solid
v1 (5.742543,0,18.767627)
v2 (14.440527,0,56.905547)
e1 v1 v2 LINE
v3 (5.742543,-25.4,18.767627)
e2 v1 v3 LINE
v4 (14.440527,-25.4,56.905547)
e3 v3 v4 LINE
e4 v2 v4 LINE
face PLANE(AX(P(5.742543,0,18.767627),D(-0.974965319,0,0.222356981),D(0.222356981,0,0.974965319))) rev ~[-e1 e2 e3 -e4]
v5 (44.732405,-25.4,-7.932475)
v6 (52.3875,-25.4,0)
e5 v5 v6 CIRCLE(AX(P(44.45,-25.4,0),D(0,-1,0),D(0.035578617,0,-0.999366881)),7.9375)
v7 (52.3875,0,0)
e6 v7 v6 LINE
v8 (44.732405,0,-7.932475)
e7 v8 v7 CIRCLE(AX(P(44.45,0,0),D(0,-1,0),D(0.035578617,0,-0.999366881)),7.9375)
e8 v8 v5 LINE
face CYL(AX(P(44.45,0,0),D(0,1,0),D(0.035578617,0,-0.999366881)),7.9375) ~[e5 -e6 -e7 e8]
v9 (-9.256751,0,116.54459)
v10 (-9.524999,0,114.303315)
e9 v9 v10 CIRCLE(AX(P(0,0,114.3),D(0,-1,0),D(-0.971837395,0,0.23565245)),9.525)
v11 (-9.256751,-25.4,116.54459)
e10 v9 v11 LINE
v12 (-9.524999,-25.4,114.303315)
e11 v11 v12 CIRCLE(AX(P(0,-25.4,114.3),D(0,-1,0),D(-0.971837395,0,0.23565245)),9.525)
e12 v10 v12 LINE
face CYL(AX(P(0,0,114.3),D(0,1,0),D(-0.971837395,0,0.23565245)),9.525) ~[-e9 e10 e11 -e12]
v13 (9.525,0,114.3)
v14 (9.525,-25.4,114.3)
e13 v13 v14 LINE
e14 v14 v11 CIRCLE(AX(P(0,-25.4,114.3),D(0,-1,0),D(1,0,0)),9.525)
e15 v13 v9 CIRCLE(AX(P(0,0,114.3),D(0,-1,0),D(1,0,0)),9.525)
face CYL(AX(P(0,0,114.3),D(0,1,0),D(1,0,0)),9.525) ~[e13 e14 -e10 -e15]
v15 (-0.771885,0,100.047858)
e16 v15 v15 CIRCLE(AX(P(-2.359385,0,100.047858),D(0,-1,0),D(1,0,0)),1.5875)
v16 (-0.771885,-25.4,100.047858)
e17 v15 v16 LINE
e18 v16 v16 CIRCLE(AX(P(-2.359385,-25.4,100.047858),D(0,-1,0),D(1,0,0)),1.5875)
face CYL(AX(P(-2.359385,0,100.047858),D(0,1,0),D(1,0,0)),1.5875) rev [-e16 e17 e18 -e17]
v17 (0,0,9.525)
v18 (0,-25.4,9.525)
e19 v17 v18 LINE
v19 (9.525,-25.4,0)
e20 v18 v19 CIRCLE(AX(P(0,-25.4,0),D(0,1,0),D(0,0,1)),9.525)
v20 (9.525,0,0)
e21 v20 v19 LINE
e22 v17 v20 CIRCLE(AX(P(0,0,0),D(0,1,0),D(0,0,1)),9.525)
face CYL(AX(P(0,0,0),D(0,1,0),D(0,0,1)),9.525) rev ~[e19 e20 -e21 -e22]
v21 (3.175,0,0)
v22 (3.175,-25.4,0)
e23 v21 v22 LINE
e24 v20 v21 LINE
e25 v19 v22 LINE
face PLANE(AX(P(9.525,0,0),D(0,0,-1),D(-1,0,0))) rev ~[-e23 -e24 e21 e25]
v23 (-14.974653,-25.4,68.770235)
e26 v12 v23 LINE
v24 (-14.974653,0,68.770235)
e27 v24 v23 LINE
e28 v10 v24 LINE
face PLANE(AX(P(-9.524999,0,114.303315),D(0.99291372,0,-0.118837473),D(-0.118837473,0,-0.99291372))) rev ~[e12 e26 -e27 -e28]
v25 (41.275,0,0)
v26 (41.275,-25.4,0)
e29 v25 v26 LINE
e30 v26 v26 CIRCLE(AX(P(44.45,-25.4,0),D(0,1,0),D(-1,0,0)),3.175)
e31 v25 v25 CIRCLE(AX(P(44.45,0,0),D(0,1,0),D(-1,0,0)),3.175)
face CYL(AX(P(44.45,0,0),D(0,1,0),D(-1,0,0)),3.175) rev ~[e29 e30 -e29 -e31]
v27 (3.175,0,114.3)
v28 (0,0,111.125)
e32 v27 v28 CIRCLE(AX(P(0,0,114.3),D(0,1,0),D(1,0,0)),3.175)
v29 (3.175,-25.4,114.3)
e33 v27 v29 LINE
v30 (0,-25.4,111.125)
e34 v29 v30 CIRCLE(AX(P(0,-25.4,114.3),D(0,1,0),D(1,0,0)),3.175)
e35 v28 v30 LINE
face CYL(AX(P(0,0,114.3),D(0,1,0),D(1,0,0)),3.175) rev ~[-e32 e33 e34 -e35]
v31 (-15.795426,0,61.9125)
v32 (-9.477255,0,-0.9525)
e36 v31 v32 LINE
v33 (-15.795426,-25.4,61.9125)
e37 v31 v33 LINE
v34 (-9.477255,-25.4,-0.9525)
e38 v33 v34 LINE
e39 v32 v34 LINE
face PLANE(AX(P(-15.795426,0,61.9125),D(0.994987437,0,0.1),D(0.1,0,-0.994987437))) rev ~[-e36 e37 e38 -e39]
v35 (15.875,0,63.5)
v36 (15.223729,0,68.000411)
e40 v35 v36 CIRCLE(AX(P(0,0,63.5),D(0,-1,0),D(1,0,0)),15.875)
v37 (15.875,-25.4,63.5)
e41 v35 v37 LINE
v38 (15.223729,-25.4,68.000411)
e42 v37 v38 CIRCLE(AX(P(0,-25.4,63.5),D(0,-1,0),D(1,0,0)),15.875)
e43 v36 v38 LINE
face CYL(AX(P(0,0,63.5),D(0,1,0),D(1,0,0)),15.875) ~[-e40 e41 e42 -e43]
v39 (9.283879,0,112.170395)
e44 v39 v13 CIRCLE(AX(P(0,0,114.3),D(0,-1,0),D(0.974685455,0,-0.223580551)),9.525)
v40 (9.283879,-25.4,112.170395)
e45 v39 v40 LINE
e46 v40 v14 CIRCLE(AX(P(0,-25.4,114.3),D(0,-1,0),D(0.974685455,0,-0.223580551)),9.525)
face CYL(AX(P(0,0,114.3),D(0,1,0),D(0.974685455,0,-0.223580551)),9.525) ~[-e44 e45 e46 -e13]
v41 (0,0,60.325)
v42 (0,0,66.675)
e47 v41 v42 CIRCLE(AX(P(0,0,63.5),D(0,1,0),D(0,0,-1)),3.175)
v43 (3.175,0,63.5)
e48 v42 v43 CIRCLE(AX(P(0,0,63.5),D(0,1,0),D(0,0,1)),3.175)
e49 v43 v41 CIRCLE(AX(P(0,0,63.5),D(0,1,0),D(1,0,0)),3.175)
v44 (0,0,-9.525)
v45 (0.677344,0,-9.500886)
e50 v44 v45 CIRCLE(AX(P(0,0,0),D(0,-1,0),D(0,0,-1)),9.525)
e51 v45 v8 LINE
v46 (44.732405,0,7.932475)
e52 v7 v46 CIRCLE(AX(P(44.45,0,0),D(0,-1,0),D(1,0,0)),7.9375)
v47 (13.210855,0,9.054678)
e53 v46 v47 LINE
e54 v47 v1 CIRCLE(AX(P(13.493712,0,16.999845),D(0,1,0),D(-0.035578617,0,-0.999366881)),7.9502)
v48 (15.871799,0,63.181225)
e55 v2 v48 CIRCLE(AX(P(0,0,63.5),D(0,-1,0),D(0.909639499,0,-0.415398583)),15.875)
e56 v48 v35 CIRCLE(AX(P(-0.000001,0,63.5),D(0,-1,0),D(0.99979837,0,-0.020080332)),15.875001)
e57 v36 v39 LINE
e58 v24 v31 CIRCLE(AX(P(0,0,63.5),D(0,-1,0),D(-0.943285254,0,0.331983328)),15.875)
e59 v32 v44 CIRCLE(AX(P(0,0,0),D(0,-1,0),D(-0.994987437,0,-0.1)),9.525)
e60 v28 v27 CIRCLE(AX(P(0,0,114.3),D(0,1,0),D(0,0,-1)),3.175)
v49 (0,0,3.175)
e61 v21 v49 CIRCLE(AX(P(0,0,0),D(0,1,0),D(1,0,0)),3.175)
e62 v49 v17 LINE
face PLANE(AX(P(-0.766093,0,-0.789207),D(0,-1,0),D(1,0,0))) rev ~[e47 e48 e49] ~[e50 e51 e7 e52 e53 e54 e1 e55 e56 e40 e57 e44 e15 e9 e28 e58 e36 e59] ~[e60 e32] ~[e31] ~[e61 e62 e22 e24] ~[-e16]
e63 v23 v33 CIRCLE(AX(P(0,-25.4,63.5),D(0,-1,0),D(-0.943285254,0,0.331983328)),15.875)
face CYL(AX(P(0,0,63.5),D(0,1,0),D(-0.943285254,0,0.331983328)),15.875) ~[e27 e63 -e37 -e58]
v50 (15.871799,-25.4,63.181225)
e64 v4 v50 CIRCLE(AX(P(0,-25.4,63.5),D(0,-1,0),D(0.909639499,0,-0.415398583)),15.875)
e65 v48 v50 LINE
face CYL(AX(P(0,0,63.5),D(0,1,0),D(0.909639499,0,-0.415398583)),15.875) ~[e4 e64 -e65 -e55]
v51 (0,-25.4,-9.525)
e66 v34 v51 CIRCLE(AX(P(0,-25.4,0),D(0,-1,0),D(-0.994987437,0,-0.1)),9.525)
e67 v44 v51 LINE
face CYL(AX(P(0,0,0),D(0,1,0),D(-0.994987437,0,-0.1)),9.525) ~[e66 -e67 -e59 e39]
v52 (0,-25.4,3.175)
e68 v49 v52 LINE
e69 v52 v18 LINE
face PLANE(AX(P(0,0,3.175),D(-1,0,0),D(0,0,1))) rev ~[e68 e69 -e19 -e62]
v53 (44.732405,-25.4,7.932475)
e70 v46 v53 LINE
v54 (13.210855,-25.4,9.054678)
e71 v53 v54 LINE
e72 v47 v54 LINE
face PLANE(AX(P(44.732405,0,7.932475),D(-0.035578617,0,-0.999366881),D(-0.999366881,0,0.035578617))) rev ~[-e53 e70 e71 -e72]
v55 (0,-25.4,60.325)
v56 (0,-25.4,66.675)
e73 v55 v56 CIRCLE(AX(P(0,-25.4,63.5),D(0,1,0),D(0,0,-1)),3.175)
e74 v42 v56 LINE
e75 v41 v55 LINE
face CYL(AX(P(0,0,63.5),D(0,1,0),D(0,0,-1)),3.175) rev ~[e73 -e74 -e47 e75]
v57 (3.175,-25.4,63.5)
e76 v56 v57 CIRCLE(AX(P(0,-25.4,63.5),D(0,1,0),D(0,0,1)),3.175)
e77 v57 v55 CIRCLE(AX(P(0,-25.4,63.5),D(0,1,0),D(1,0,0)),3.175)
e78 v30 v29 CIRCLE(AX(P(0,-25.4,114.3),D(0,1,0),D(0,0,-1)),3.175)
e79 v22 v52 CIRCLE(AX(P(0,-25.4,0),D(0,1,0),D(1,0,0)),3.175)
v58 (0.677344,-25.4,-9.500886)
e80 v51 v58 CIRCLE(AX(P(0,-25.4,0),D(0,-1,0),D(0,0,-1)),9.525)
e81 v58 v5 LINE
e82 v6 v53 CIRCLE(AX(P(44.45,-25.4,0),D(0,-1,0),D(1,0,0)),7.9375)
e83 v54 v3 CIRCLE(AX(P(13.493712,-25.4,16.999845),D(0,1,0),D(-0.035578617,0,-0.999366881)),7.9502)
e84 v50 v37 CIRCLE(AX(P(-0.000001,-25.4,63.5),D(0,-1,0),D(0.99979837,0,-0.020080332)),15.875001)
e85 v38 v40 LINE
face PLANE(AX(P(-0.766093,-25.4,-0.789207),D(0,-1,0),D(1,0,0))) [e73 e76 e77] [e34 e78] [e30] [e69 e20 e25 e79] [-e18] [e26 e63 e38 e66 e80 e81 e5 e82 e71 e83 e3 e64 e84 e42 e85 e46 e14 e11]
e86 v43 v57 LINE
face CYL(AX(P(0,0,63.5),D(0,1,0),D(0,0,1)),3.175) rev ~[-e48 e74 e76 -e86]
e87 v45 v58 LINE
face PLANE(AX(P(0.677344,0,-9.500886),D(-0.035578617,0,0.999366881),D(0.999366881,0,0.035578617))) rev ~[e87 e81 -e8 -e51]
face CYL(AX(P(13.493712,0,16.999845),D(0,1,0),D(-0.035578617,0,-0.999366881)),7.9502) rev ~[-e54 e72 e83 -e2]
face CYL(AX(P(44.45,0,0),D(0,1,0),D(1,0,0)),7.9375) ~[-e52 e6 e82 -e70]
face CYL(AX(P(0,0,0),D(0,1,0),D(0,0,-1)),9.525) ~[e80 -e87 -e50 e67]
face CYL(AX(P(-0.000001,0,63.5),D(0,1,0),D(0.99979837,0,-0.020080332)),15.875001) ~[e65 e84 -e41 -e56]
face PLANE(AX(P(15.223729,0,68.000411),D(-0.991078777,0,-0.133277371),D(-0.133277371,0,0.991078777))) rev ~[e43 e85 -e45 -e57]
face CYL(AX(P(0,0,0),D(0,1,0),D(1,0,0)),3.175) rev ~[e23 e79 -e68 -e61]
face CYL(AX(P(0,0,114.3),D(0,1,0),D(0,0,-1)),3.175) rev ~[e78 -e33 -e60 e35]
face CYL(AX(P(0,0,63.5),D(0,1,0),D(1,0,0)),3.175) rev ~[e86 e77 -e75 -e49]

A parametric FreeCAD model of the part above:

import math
import FreeCAD as App
import Part
import Sketcher
Q = App.Units.Quantity

doc = App.newDocument("Part")
body = doc.addObject("PartDesign::Body", "Body")

# Sketch on XZ plane
sketch1 = body.newObject("Sketcher::SketchObject", "Sketch")
sketch1.AttachmentSupport = (doc.getObject("XZ_Plane"), [""])
sketch1.MapMode = "FlatFace"
sketch1.addGeometry([
    Part.ArcOfCircle(Part.Circle(App.Vector(0, 0, 0), App.Vector(0, 0, 1), 9.525), math.radians(-90), math.radians(-85.92213)),  # 0
    Part.LineSegment(App.Vector(0.677344, -9.500886, 0), App.Vector(44.732405, -7.932475, 0)),  # 1
    Part.ArcOfCircle(Part.Circle(App.Vector(44.45, 0, 0), App.Vector(0, 0, 1), 7.9375), math.radians(-87.961065), math.radians(0)),  # 2
    Part.ArcOfCircle(Part.Circle(App.Vector(44.45, 0, 0), App.Vector(0, 0, 1), 7.9375), math.radians(0), math.radians(87.961065)),  # 3
    Part.LineSegment(App.Vector(44.732405, 7.932475, 0), App.Vector(13.210855, 9.054678, 0)),  # 4
    Part.ArcOfCircle(Part.Circle(App.Vector(13.493712, 16.999845, 0), App.Vector(0, 0, 1), 7.9502), math.radians(167.152492), math.radians(267.961065)),  # 5
    Part.LineSegment(App.Vector(5.742543, 18.767627, 0), App.Vector(14.440527, 56.905547, 0)),  # 6
    Part.ArcOfCircle(Part.Circle(App.Vector(0, 63.5, 0), App.Vector(0, 0, 1), 15.875), math.radians(-24.54442), math.radians(-1.150596)),  # 7
    Part.ArcOfCircle(Part.Circle(App.Vector(-0.000001, 63.5, 0), App.Vector(0, 0, 1), 15.875001), math.radians(-1.150596), math.radians(0)),  # 8
    Part.ArcOfCircle(Part.Circle(App.Vector(0, 63.5, 0), App.Vector(0, 0, 1), 15.875), math.radians(0), math.radians(16.468636)),  # 9
    Part.LineSegment(App.Vector(15.223729, 68.000411, 0), App.Vector(9.283879, 112.170395, 0)),  # 10
    Part.ArcOfCircle(Part.Circle(App.Vector(0, 114.3, 0), App.Vector(0, 0, 1), 9.525), math.radians(-12.919424), math.radians(0)),  # 11
    Part.ArcOfCircle(Part.Circle(App.Vector(0, 114.3, 0), App.Vector(0, 0, 1), 9.525), math.radians(0), math.radians(166.369914)),  # 12
    Part.ArcOfCircle(Part.Circle(App.Vector(0, 114.3, 0), App.Vector(0, 0, 1), 9.525), math.radians(166.369914), math.radians(179.980056)),  # 13
    Part.LineSegment(App.Vector(-9.524999, 114.303315, 0), App.Vector(-14.974653, 68.770235, 0)),  # 14
    Part.ArcOfCircle(Part.Circle(App.Vector(0, 63.5, 0), App.Vector(0, 0, 1), 15.875), math.radians(160.6108), math.radians(185.73917)),  # 15
    Part.LineSegment(App.Vector(-15.795426, 61.9125, 0), App.Vector(-9.477255, -0.9525, 0)),  # 16
    Part.ArcOfCircle(Part.Circle(App.Vector(0, 0, 0), App.Vector(0, 0, 1), 9.525), math.radians(-174.26083), math.radians(-90)),  # 17
    Part.ArcOfCircle(Part.Circle(App.Vector(0, 0, 0), App.Vector(0, 0, 1), 9.525), math.radians(0), math.radians(90)),  # 18
    Part.LineSegment(App.Vector(9.525, 0, 0), App.Vector(3.175, 0, 0)),  # 19
    Part.ArcOfCircle(Part.Circle(App.Vector(0, 0, 0), App.Vector(0, 0, 1), 3.175), math.radians(90), math.radians(360)),  # 20
    Part.LineSegment(App.Vector(0, 3.175, 0), App.Vector(0, 9.525, 0)),  # 21
    Part.Circle(App.Vector(44.45, 0, 0), App.Vector(0, 0, 1), 3.175),  # 22
    Part.ArcOfCircle(Part.Circle(App.Vector(0, 63.5, 0), App.Vector(0, 0, 1), 3.175), math.radians(90), math.radians(270)),  # 23
    Part.ArcOfCircle(Part.Circle(App.Vector(0, 63.5, 0), App.Vector(0, 0, 1), 3.175), math.radians(0), math.radians(90)),  # 24
    Part.ArcOfCircle(Part.Circle(App.Vector(0, 63.5, 0), App.Vector(0, 0, 1), 3.175), math.radians(-90), math.radians(0)),  # 25
    Part.Circle(App.Vector(-2.359385, 100.047858, 0), App.Vector(0, 0, 1), 1.5875),  # 26
    Part.ArcOfCircle(Part.Circle(App.Vector(0, 114.3, 0), App.Vector(0, 0, 1), 3.175), math.radians(0), math.radians(270)),  # 27
    Part.ArcOfCircle(Part.Circle(App.Vector(0, 114.3, 0), App.Vector(0, 0, 1), 3.175), math.radians(-90), math.radians(0)),  # 28
], False)
sketch1.addConstraint([
    Sketcher.Constraint("Coincident", 0, 2, 1, 1),
    Sketcher.Constraint("Coincident", 1, 2, 2, 1),
    Sketcher.Constraint("Coincident", 2, 2, 3, 1),
    Sketcher.Constraint("Coincident", 3, 2, 4, 1),
    Sketcher.Constraint("Coincident", 4, 2, 5, 2),
    Sketcher.Constraint("Coincident", 5, 1, 6, 1),
    Sketcher.Constraint("Coincident", 6, 2, 7, 1),
    Sketcher.Constraint("Coincident", 7, 2, 8, 1),
    Sketcher.Constraint("Coincident", 8, 2, 9, 1),
    Sketcher.Constraint("Coincident", 9, 2, 10, 1),
    Sketcher.Constraint("Coincident", 10, 2, 11, 1),
    Sketcher.Constraint("Coincident", 11, 2, 12, 1),
    Sketcher.Constraint("Coincident", 12, 2, 13, 1),
    Sketcher.Constraint("Coincident", 13, 2, 14, 1),
    Sketcher.Constraint("Coincident", 14, 2, 15, 1),
    Sketcher.Constraint("Coincident", 15, 2, 16, 1),
    Sketcher.Constraint("Coincident", 16, 2, 17, 1),
    Sketcher.Constraint("Coincident", 17, 2, 0, 1),
    Sketcher.Constraint("Coincident", 18, 1, 19, 1),
    Sketcher.Constraint("Coincident", 19, 2, 20, 2),
    Sketcher.Constraint("Coincident", 20, 1, 21, 1),
    Sketcher.Constraint("Coincident", 21, 2, 18, 2),
    Sketcher.Constraint("Coincident", 23, 1, 24, 2),
    Sketcher.Constraint("Coincident", 24, 1, 25, 2),
    Sketcher.Constraint("Coincident", 25, 1, 23, 2),
    Sketcher.Constraint("Coincident", 27, 1, 28, 2),
    Sketcher.Constraint("Coincident", 28, 1, 27, 2),
    Sketcher.Constraint("Horizontal", 19),
    Sketcher.Constraint("Vertical", 21),
    Sketcher.Constraint("Coincident", 0, 3, -1, 1),
    Sketcher.Constraint("Coincident", 17, 3, -1, 1),
    Sketcher.Constraint("Coincident", 18, 3, -1, 1),
    Sketcher.Constraint("Coincident", 20, 3, -1, 1),
    Sketcher.Constraint("Coincident", 3, 3, 2, 3),
    Sketcher.Constraint("Coincident", 8, 3, 7, 3),
    Sketcher.Constraint("Coincident", 9, 3, 7, 3),
    Sketcher.Constraint("Coincident", 12, 3, 11, 3),
    Sketcher.Constraint("Coincident", 13, 3, 11, 3),
    Sketcher.Constraint("Coincident", 15, 3, 7, 3),
    Sketcher.Constraint("Coincident", 22, 3, 2, 3),
    Sketcher.Constraint("Coincident", 23, 3, 7, 3),
    Sketcher.Constraint("Coincident", 24, 3, 7, 3),
    Sketcher.Constraint("Coincident", 27, 3, 11, 3),
    Sketcher.Constraint("PointOnObject", 2, 3, -1),
    Sketcher.Constraint("PointOnObject", 7, 3, -2),
    Sketcher.Constraint("PointOnObject", 11, 3, -2),
    Sketcher.Constraint("PointOnObject", 25, 3, -2),
    Sketcher.Constraint("PointOnObject", 28, 3, -2),
    Sketcher.Constraint("PointOnObject", 2, 2, -1),
    Sketcher.Constraint("PointOnObject", 17, 2, -2),
    Sketcher.Constraint("PointOnObject", 18, 1, -1),
    Sketcher.Constraint("PointOnObject", 20, 1, -2),
    Sketcher.Constraint("PointOnObject", 23, 1, -2),
    Sketcher.Constraint("PointOnObject", 25, 1, -2),
    Sketcher.Constraint("PointOnObject", 28, 1, -2),
    Sketcher.Constraint("Diameter", 22, Q("0.25 in")),
    Sketcher.Constraint("Diameter", 26, Q("0.125 in")),
    Sketcher.Constraint("Radius", 0, Q("0.375 in")),
    Sketcher.Constraint("Radius", 2, Q("0.3125 in")),
    Sketcher.Constraint("Radius", 5, Q("0.313 in")),
    Sketcher.Constraint("Radius", 7, Q("0.625 in")),
    Sketcher.Constraint("Radius", 11, Q("0.375 in")),
    Sketcher.Constraint("Radius", 15, Q("0.625 in")),
    Sketcher.Constraint("Radius", 18, Q("0.375 in")),
    Sketcher.Constraint("Radius", 20, Q("0.125 in")),
    Sketcher.Constraint("Radius", 23, Q("0.125 in")),
    Sketcher.Constraint("Radius", 27, Q("0.125 in")),
    Sketcher.Constraint("DistanceY", 8, 3, 11, 3, Q("2 in")),
    Sketcher.Constraint("DistanceY", -1, 1, 7, 3, Q("2.5 in")),
    Sketcher.Constraint("DistanceY", -1, 1, 8, 2, Q("2.5 in")),
    Sketcher.Constraint("DistanceY", -1, 1, 11, 2, Q("4.5 in")),
    Sketcher.Constraint("DistanceY", -1, 1, 24, 1, Q("2.5 in")),
    Sketcher.Constraint("DistanceY", -1, 1, 27, 1, Q("4.5 in")),
    Sketcher.Constraint("DistanceX", -1, 1, 2, 3, Q("1.75 in")),
    Sketcher.Constraint("DistanceY", -1, 1, 15, 2, Q("2.4375 in")),
    Sketcher.Constraint("DistanceY", 16, 2, -1, 1, Q("0.0375 in")),
    Sketcher.Constraint("DistanceX", -1, 1, 7, 2, 15.871799),
    Sketcher.Constraint("DistanceX", 16, 2, 0, 2, 10.154599),
    Sketcher.Constraint("Distance", 1, 44.082972),
    Sketcher.Constraint("Distance", 4, 31.54152),
    Sketcher.Constraint("Distance", 10, 44.567582),
    Sketcher.Constraint("DistanceY", -1, 1, 26, 3, 100.047858),
    Sketcher.Constraint("DistanceY", -1, 1, 4, 2, 9.054678),
    Sketcher.Constraint("DistanceX", -1, 1, 9, 2, 15.223729),
    Sketcher.Constraint("DistanceX", 12, 2, -1, 1, 9.256751),
    Sketcher.Constraint("DistanceX", 0, 2, 5, 3, 12.816369),
    Sketcher.Constraint("DistanceY", 0, 2, 5, 3, 26.500731),
    Sketcher.Constraint("DistanceX", 5, 1, 5, 3, 7.751169),
    Sketcher.Constraint("Distance", 6, 39.117207),
    Sketcher.Constraint("Distance", 14, 45.858043),
    Sketcher.Constraint("DistanceX", 26, 3, -1, 1, 2.359385),
    Sketcher.Constraint("DistanceY", -1, 1, 13, 2, 114.303315),
])
pad1 = body.newObject("PartDesign::Pad", "Pad")
pad1.Profile = sketch1
pad1.Length = Q("1 in")

doc.recompute()
